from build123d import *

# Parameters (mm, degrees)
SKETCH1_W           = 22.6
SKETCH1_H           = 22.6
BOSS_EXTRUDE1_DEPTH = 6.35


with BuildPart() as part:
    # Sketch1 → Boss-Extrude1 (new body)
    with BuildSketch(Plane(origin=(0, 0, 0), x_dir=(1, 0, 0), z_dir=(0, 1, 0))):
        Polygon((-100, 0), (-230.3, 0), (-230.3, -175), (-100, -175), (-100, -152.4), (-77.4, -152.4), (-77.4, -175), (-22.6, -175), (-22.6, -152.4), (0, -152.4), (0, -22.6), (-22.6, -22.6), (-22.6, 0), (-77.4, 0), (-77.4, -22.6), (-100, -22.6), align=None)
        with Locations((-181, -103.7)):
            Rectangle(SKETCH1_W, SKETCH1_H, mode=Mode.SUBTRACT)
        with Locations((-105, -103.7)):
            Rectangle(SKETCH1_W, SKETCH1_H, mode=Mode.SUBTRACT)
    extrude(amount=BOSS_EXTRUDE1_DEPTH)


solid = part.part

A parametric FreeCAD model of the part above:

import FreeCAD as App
import Part
import Sketcher
from FreeCAD import Vector
Q = App.Units.Quantity

doc = App.newDocument("Part")
body = doc.addObject("PartDesign::Body", "Body")

# Sketch on XZ plane
sketch1 = body.newObject("Sketcher::SketchObject", "Sketch")
sketch1.AttachmentSupport = (doc.getObject("XZ_Plane"), [""])
sketch1.MapMode = "FlatFace"
sketch1.addGeometry([
    Part.LineSegment(Vector(-100, 0, 0), Vector(-230, 0, 0)),  # 0
    Part.LineSegment(Vector(-230, 0, 0), Vector(-230, 175, 0)),  # 1
    Part.LineSegment(Vector(-230, 175, 0), Vector(-100, 175, 0)),  # 2
    Part.LineSegment(Vector(-100, 175, 0), Vector(-100, 152, 0)),  # 3
    Part.LineSegment(Vector(-100, 152, 0), Vector(-77, 152, 0)),  # 4
    Part.LineSegment(Vector(-77, 152, 0), Vector(-77, 175, 0)),  # 5
    Part.LineSegment(Vector(-77, 175, 0), Vector(-23, 175, 0)),  # 6
    Part.LineSegment(Vector(-23, 175, 0), Vector(-23, 152, 0)),  # 7
    Part.LineSegment(Vector(-23, 152, 0), Vector(0, 152, 0)),  # 8
    Part.LineSegment(Vector(0, 152, 0), Vector(0, 23, 0)),  # 9
    Part.LineSegment(Vector(0, 23, 0), Vector(-23, 23, 0)),  # 10
    Part.LineSegment(Vector(-23, 23, 0), Vector(-23, 0, 0)),  # 11
    Part.LineSegment(Vector(-23, 0, 0), Vector(-77, 0, 0)),  # 12
    Part.LineSegment(Vector(-77, 0, 0), Vector(-77, 23, 0)),  # 13
    Part.LineSegment(Vector(-77, 23, 0), Vector(-100, 23, 0)),  # 14
    Part.LineSegment(Vector(-100, 23, 0), Vector(-100, 0, 0)),  # 15
    Part.LineSegment(Vector(-170, 115, 0), Vector(-192, 115, 0)),  # 16
    Part.LineSegment(Vector(-192, 115, 0), Vector(-192, 92, 0)),  # 17
    Part.LineSegment(Vector(-192, 92, 0), Vector(-170, 92, 0)),  # 18
    Part.LineSegment(Vector(-170, 92, 0), Vector(-170, 115, 0)),  # 19
    Part.LineSegment(Vector(-94, 115, 0), Vector(-116, 115, 0)),  # 20
    Part.LineSegment(Vector(-116, 115, 0), Vector(-116, 92, 0)),  # 21
    Part.LineSegment(Vector(-116, 92, 0), Vector(-94, 92, 0)),  # 22
    Part.LineSegment(Vector(-94, 92, 0), Vector(-94, 115, 0)),  # 23
], False)
sketch1.addConstraint([
    Sketcher.Constraint("Coincident", 0, 2, 1, 1),
    Sketcher.Constraint("Coincident", 1, 2, 2, 1),
    Sketcher.Constraint("Coincident", 2, 2, 3, 1),
    Sketcher.Constraint("Coincident", 3, 2, 4, 1),
    Sketcher.Constraint("Coincident", 4, 2, 5, 1),
    Sketcher.Constraint("Coincident", 5, 2, 6, 1),
    Sketcher.Constraint("Coincident", 6, 2, 7, 1),
    Sketcher.Constraint("Coincident", 7, 2, 8, 1),
    Sketcher.Constraint("Coincident", 8, 2, 9, 1),
    Sketcher.Constraint("Coincident", 9, 2, 10, 1),
    Sketcher.Constraint("Coincident", 10, 2, 11, 1),
    Sketcher.Constraint("Coincident", 11, 2, 12, 1),
    Sketcher.Constraint("Coincident", 12, 2, 13, 1),
    Sketcher.Constraint("Coincident", 13, 2, 14, 1),
    Sketcher.Constraint("Coincident", 14, 2, 15, 1),
    Sketcher.Constraint("Coincident", 15, 2, 0, 1),
    Sketcher.Constraint("Coincident", 16, 2, 17, 1),
    Sketcher.Constraint("Coincident", 17, 2, 18, 1),
    Sketcher.Constraint("Coincident", 18, 2, 19, 1),
    Sketcher.Constraint("Coincident", 19, 2, 16, 1),
    Sketcher.Constraint("Coincident", 20, 2, 21, 1),
    Sketcher.Constraint("Coincident", 21, 2, 22, 1),
    Sketcher.Constraint("Coincident", 22, 2, 23, 1),
    Sketcher.Constraint("Coincident", 23, 2, 20, 1),
    Sketcher.Constraint("Horizontal", 0),
    Sketcher.Constraint("Vertical", 1),
    Sketcher.Constraint("Horizontal", 2),
    Sketcher.Constraint("Vertical", 3),
    Sketcher.Constraint("Horizontal", 4),
    Sketcher.Constraint("Vertical", 5),
    Sketcher.Constraint("Horizontal", 6),
    Sketcher.Constraint("Vertical", 7),
    Sketcher.Constraint("Horizontal", 8),
    Sketcher.Constraint("Vertical", 9),
    Sketcher.Constraint("Horizontal", 10),
    Sketcher.Constraint("Vertical", 11),
    Sketcher.Constraint("Horizontal", 12),
    Sketcher.Constraint("Vertical", 13),
    Sketcher.Constraint("Horizontal", 14),
    Sketcher.Constraint("Vertical", 15),
    Sketcher.Constraint("Horizontal", 16),
    Sketcher.Constraint("Vertical", 17),
    Sketcher.Constraint("Horizontal", 18),
    Sketcher.Constraint("Vertical", 19),
    Sketcher.Constraint("Horizontal", 20),
    Sketcher.Constraint("Vertical", 21),
    Sketcher.Constraint("Horizontal", 22),
    Sketcher.Constraint("Vertical", 23),
    Sketcher.Constraint("PointOnObject", 0, 2, -1),
    Sketcher.Constraint("PointOnObject", 8, 2, -2),
    Sketcher.Constraint("PointOnObject", 11, 2, -1),
    Sketcher.Constraint("Horizontal", 2, 2, 5, 2),
    Sketcher.Constraint("Horizontal", 4, 2, 7, 2),
    Sketcher.Constraint("Horizontal", 10, 2, 13, 2),
    Sketcher.Constraint("Horizontal", 19, 2, 20, 2),
    Sketcher.Constraint("Horizontal", 18, 2, 21, 2),
    Sketcher.Constraint("Vertical", 7, 2, 10, 2),
    Sketcher.Constraint("Vertical", 5, 2, 12, 2),
    Sketcher.Constraint("Vertical", 3, 2, 14, 2),
    Sketcher.Constraint("Equal", 4, 8),
    Sketcher.Constraint("Equal", 14, 16),
    Sketcher.Constraint("Equal", 18, 20),
    Sketcher.Constraint("Equal", 22, 3),
    Sketcher.Constraint("Equal", 7, 11),
    Sketcher.Constraint("Equal", 15, 17),
    Sketcher.Constraint("DistanceY", 1, 1, 1, 2, Q("175 mm")),
    Sketcher.Constraint("DistanceX", 0, 2, 0, 1, Q("130.3 mm")),
    Sketcher.Constraint("DistanceX", 4, 1, 4, 2, Q("22.6 mm")),
    Sketcher.Constraint("DistanceX", 6, 1, 6, 2, Q("54.8 mm")),
    Sketcher.Constraint("DistanceY", -1, 1, 16, 2, Q("115 mm")),
    Sketcher.Constraint("DistanceX", 1, 2, 16, 2, Q("38 mm")),
    Sketcher.Constraint("DistanceX", 20, 2, -1, 1, Q("116.3 mm")),
])
pad1 = body.newObject("PartDesign::Pad", "Pad")
pad1.Profile = sketch1
pad1.Length = 6.35
pad1.Reversed = True

doc.recompute()
